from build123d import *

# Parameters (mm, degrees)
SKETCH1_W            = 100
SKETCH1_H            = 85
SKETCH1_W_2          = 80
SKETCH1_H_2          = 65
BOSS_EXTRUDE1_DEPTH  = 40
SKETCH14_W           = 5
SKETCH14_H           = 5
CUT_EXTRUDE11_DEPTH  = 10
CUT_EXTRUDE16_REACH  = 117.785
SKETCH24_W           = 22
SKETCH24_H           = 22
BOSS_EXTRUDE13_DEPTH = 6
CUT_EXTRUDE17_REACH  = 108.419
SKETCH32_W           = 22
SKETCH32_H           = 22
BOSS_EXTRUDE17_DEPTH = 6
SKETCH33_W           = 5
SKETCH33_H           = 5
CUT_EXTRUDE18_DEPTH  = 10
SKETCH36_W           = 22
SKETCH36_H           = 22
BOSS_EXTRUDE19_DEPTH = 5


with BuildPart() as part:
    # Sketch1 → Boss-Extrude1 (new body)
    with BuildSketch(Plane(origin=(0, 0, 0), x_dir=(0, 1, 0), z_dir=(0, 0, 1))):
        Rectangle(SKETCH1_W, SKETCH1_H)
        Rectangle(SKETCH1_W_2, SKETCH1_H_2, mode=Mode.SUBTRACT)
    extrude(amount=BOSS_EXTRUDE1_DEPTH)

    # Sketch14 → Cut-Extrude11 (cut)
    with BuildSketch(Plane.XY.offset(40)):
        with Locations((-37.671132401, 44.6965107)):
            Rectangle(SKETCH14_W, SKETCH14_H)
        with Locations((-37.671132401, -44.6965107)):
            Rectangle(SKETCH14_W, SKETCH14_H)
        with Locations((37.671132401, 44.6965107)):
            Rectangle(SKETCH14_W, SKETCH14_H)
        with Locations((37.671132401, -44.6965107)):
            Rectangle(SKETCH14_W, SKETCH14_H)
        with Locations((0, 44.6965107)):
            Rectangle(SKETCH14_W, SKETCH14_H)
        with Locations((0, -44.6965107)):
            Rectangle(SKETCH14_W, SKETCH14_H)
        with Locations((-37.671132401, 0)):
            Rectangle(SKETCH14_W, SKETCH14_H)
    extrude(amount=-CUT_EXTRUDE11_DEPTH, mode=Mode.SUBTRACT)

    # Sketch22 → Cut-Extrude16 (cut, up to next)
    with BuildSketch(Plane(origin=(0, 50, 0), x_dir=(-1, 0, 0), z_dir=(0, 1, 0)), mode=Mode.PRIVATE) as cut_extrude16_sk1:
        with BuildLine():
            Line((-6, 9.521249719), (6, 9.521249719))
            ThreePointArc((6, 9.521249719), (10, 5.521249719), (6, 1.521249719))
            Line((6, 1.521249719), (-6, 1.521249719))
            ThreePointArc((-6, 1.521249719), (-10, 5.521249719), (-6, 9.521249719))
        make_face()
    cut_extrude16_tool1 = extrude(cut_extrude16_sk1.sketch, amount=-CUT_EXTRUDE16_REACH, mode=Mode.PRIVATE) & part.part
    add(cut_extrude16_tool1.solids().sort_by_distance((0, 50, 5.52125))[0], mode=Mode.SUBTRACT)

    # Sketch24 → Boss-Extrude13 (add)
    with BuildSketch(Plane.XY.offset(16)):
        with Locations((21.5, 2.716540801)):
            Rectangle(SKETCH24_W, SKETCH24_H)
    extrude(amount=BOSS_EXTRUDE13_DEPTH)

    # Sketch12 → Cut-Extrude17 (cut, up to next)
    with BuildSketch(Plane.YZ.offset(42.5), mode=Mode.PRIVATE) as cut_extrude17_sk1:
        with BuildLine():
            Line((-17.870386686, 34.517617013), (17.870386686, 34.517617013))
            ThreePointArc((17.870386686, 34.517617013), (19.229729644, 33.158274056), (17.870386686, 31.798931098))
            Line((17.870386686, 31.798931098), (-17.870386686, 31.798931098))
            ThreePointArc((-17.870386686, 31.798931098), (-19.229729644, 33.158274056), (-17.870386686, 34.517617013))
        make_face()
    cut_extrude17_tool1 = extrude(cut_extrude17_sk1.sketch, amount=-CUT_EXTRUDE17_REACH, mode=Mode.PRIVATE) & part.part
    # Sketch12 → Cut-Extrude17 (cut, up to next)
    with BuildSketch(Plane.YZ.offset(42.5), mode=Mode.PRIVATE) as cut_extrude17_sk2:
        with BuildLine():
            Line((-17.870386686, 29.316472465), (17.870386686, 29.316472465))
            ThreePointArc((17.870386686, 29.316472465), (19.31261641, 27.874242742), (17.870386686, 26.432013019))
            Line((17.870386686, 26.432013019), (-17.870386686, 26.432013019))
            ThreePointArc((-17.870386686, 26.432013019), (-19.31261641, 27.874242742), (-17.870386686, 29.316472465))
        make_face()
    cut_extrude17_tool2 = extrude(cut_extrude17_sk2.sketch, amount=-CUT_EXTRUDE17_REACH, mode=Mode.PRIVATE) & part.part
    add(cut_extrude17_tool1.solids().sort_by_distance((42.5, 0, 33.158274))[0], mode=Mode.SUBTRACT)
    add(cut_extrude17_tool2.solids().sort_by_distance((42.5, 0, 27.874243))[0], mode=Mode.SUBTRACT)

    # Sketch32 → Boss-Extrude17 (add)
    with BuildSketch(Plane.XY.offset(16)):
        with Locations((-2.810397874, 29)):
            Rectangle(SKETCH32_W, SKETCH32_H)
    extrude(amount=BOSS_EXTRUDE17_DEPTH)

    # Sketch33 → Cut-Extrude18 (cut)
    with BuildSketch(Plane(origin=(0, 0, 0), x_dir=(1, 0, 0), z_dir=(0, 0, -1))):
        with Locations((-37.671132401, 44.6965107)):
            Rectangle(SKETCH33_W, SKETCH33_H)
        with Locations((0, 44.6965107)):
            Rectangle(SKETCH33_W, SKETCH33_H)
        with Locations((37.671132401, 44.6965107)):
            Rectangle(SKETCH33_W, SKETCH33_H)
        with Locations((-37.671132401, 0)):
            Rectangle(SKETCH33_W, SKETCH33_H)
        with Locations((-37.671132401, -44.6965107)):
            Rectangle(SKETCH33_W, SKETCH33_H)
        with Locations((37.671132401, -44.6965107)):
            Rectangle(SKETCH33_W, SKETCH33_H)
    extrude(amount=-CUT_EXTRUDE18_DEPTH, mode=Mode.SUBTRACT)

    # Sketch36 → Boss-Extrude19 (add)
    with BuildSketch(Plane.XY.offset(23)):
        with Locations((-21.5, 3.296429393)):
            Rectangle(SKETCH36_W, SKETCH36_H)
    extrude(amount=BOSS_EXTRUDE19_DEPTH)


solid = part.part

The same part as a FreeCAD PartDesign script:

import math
import FreeCAD as App
import Part
import Sketcher
from FreeCAD import Vector
Q = App.Units.Quantity


def add_polygon(sketch, points):
    """Adds a closed chain of lines whose ends are joined by coincident constraints."""
    first, n = sketch.GeometryCount, len(points)
    for a, b in zip(points, points[1:] + points[:1]):
        sketch.addGeometry(Part.LineSegment(App.Vector(*a, 0), App.Vector(*b, 0)), False)
    for i in range(n):
        sketch.addConstraint(Sketcher.Constraint("Coincident", first + i, 2, first + (i + 1) % n, 1))

doc = App.newDocument("Part")
body = doc.addObject("PartDesign::Body", "Body")

sketch1 = body.newObject("Sketcher::SketchObject", "Sketch")
sketch1.AttachmentSupport = (doc.getObject("XY_Plane"), [""])
sketch1.MapMode = "FlatFace"
add_polygon(sketch1, [(-42.5, -50), (42.5, -50), (42.5, 50), (-42.5, 50)])
add_polygon(sketch1, [(32.5, 40), (32.5, -40), (-32.5, -40), (-32.5, 40)])
sketch1.addConstraint(Sketcher.Constraint("Horizontal", 0))
sketch1.addConstraint(Sketcher.Constraint("Vertical", 1))
sketch1.addConstraint(Sketcher.Constraint("Horizontal", 2))
sketch1.addConstraint(Sketcher.Constraint("Vertical", 3))
sketch1.addConstraint(Sketcher.Constraint("Vertical", 4))
sketch1.addConstraint(Sketcher.Constraint("Horizontal", 5))
sketch1.addConstraint(Sketcher.Constraint("Vertical", 6))
sketch1.addConstraint(Sketcher.Constraint("Horizontal", 7))
sketch1.addConstraint(Sketcher.Constraint("Symmetric", 0, 2, 2, 2, -1, 1))
sketch1.addConstraint(Sketcher.Constraint("Symmetric", 4, 2, 6, 2, -1, 1))
sketch1.addConstraint(Sketcher.Constraint("DistanceX", 0, 1, 0, 2, Q("85 mm")))
sketch1.addConstraint(Sketcher.Constraint("DistanceX", 5, 2, 5, 1, Q("65 mm")))
sketch1.addConstraint(Sketcher.Constraint("DistanceY", 1, 1, 1, 2, Q("100 mm")))
sketch1.addConstraint(Sketcher.Constraint("DistanceY", 4, 2, 4, 1, Q("80 mm")))
pad1 = body.newObject("PartDesign::Pad", "Pad")
pad1.Profile = sketch1
pad1.Length = 40

sketch2 = body.newObject("Sketcher::SketchObject", "Sketch001")
sketch2.AttachmentSupport = (doc.getObject("XY_Plane"), [""])
sketch2.MapMode = "FlatFace"
sketch2.AttachmentOffset = App.Placement(Vector(0, 0, 40), App.Rotation())
add_polygon(sketch2, [(-40.171132, 47.196511), (-40.171132, 42.196511), (-35.171132, 42.196511), (-35.171132, 47.196511)])
add_polygon(sketch2, [(-40.171132, -42.196511), (-40.171132, -47.196511), (-35.171132, -47.196511), (-35.171132, -42.196511)])
add_polygon(sketch2, [(35.171132, 47.196511), (35.171132, 42.196511), (40.171132, 42.196511), (40.171132, 47.196511)])
add_polygon(sketch2, [(35.171132, -42.196511), (35.171132, -47.196511), (40.171132, -47.196511), (40.171132, -42.196511)])
add_polygon(sketch2, [(-2.5, 47.196511), (-2.5, 42.196511), (2.5, 42.196511), (2.5, 47.196511)])
add_polygon(sketch2, [(-2.5, -42.196511), (-2.5, -47.196511), (2.5, -47.196511), (2.5, -42.196511)])
add_polygon(sketch2, [(-40.171132, 2.5), (-40.171132, -2.5), (-35.171132, -2.5), (-35.171132, 2.5)])
sketch2.addConstraint(Sketcher.Constraint("Vertical", 0))
sketch2.addConstraint(Sketcher.Constraint("Horizontal", 1))
sketch2.addConstraint(Sketcher.Constraint("Vertical", 2))
sketch2.addConstraint(Sketcher.Constraint("Horizontal", 3))
sketch2.addConstraint(Sketcher.Constraint("Vertical", 4))
sketch2.addConstraint(Sketcher.Constraint("Horizontal", 5))
sketch2.addConstraint(Sketcher.Constraint("Vertical", 6))
sketch2.addConstraint(Sketcher.Constraint("Horizontal", 7))
sketch2.addConstraint(Sketcher.Constraint("Vertical", 8))
sketch2.addConstraint(Sketcher.Constraint("Horizontal", 9))
sketch2.addConstraint(Sketcher.Constraint("Vertical", 10))
sketch2.addConstraint(Sketcher.Constraint("Horizontal", 11))
sketch2.addConstraint(Sketcher.Constraint("Vertical", 12))
sketch2.addConstraint(Sketcher.Constraint("Horizontal", 13))
sketch2.addConstraint(Sketcher.Constraint("Vertical", 14))
sketch2.addConstraint(Sketcher.Constraint("Horizontal", 15))
sketch2.addConstraint(Sketcher.Constraint("Vertical", 16))
sketch2.addConstraint(Sketcher.Constraint("Horizontal", 17))
sketch2.addConstraint(Sketcher.Constraint("Vertical", 18))
sketch2.addConstraint(Sketcher.Constraint("Horizontal", 19))
sketch2.addConstraint(Sketcher.Constraint("Vertical", 20))
sketch2.addConstraint(Sketcher.Constraint("Horizontal", 21))
sketch2.addConstraint(Sketcher.Constraint("Vertical", 22))
sketch2.addConstraint(Sketcher.Constraint("Horizontal", 23))
sketch2.addConstraint(Sketcher.Constraint("Vertical", 24))
sketch2.addConstraint(Sketcher.Constraint("Horizontal", 25))
sketch2.addConstraint(Sketcher.Constraint("Vertical", 26))
sketch2.addConstraint(Sketcher.Constraint("Horizontal", 27))
sketch2.addConstraint(Sketcher.Constraint("Symmetric", 6, 2, 8, 2, -1, 1))
sketch2.addConstraint(Sketcher.Constraint("Symmetric", 4, 2, 10, 2, -1, 1))
sketch2.addConstraint(Sketcher.Constraint("Symmetric", 2, 2, 12, 2, -1, 1))
sketch2.addConstraint(Sketcher.Constraint("Symmetric", 0, 2, 14, 2, -1, 1))
sketch2.addConstraint(Sketcher.Constraint("Symmetric", 18, 2, 20, 2, -1, 1))
sketch2.addConstraint(Sketcher.Constraint("Symmetric", 16, 2, 22, 2, -1, 1))
sketch2.addConstraint(Sketcher.Constraint("Symmetric", 1, 2, 8, 2, -2))
sketch2.addConstraint(Sketcher.Constraint("Symmetric", 3, 2, 10, 2, -2))
sketch2.addConstraint(Sketcher.Constraint("Horizontal", 9, 2, 16, 2))
sketch2.addConstraint(Sketcher.Constraint("Horizontal", 11, 2, 18, 2))
sketch2.addConstraint(Sketcher.Constraint("Vertical", 19, 2, 20, 2))
sketch2.addConstraint(Sketcher.Constraint("Vertical", 7, 2, 24, 2))
sketch2.addConstraint(Sketcher.Constraint("Vertical", 6, 2, 25, 2))
sketch2.addConstraint(Sketcher.Constraint("Equal", 15, 17))
sketch2.addConstraint(Sketcher.Constraint("Equal", 27, 0))
sketch2.addConstraint(Sketcher.Constraint("Equal", 22, 24))
sketch2.addConstraint(Sketcher.Constraint("DistanceX", 1, 1, 1, 2, Q("5 mm")))
sketch2.addConstraint(Sketcher.Constraint("DistanceY", 24, 2, -1, 1, Q("2.5 mm")))
sketch2.addConstraint(Sketcher.Constraint("DistanceY", -1, 1, 0, 2, Q("42.196511 mm")))
sketch2.addConstraint(Sketcher.Constraint("DistanceX", 0, 2, -1, 1, Q("40.171132 mm")))
pocket1 = body.newObject("PartDesign::Pocket", "Pocket")
pocket1.Profile = sketch2
pocket1.Length = 10

sketch3 = body.newObject("Sketcher::SketchObject", "Sketch002")
sketch3.AttachmentSupport = (doc.getObject("XZ_Plane"), [""])
sketch3.MapMode = "FlatFace"
sketch3.AttachmentOffset = App.Placement(Vector(0, 0, -50), App.Rotation())
sketch3.addGeometry(Part.LineSegment(Vector(-6, 9.52125, 0), Vector(6, 9.52125, 0)), False)
sketch3.addGeometry(Part.ArcOfCircle(Part.Circle(Vector(6, 5.52125, 0), Vector(0, 0, 1), 4), math.radians(-90), math.radians(90)), False)
sketch3.addGeometry(Part.LineSegment(Vector(6, 1.52125, 0), Vector(-6, 1.52125, 0)), False)
sketch3.addGeometry(Part.ArcOfCircle(Part.Circle(Vector(-6, 5.52125, 0), Vector(0, 0, 1), 4), math.radians(90), math.radians(270)), False)
sketch3.addConstraint(Sketcher.Constraint("Tangent", 0, 2, 1, 2))
sketch3.addConstraint(Sketcher.Constraint("Tangent", 1, 1, 2, 1))
sketch3.addConstraint(Sketcher.Constraint("Tangent", 2, 2, 3, 2))
sketch3.addConstraint(Sketcher.Constraint("Tangent", 3, 1, 0, 1))
sketch3.addConstraint(Sketcher.Constraint("Horizontal", 0))
sketch3.addConstraint(Sketcher.Constraint("Horizontal", 2))
sketch3.addConstraint(Sketcher.Constraint("Radius", 1, Q("4 mm")))
sketch3.addConstraint(Sketcher.Constraint("DistanceX", 0, 1, 0, 2, Q("12 mm")))
sketch3.addConstraint(Sketcher.Constraint("DistanceX", -1, 1, 1, 3, Q("6 mm")))
sketch3.addConstraint(Sketcher.Constraint("DistanceY", -1, 1, 1, 3, Q("5.52125 mm")))
pocket2 = body.newObject("PartDesign::Pocket", "Pocket001")
pocket2.Profile = sketch3
pocket2.Type = "UpToFirst"
pocket2.Reversed = True

sketch4 = body.newObject("Sketcher::SketchObject", "Sketch003")
sketch4.AttachmentSupport = (doc.getObject("XY_Plane"), [""])
sketch4.MapMode = "FlatFace"
sketch4.AttachmentOffset = App.Placement(Vector(0, 0, 16), App.Rotation())
add_polygon(sketch4, [(10.5, 13.716541), (10.5, -8.283459), (32.5, -8.283459), (32.5, 13.716541)])
sketch4.addConstraint(Sketcher.Constraint("Vertical", 0))
sketch4.addConstraint(Sketcher.Constraint("Horizontal", 1))
sketch4.addConstraint(Sketcher.Constraint("Vertical", 2))
sketch4.addConstraint(Sketcher.Constraint("Horizontal", 3))
sketch4.addConstraint(Sketcher.Constraint("Equal", 3, 0))
sketch4.addConstraint(Sketcher.Constraint("DistanceX", 1, 1, 1, 2, Q("22 mm")))
sketch4.addConstraint(Sketcher.Constraint("DistanceX", -1, 1, 0, 2, Q("10.5 mm")))
sketch4.addConstraint(Sketcher.Constraint("DistanceY", 0, 2, -1, 1, Q("8.283459 mm")))
pad2 = body.newObject("PartDesign::Pad", "Pad001")
pad2.Profile = sketch4
pad2.Length = 6

sketch5 = body.newObject("Sketcher::SketchObject", "Sketch004")
sketch5.AttachmentSupport = (doc.getObject("YZ_Plane"), [""])
sketch5.MapMode = "FlatFace"
sketch5.AttachmentOffset = App.Placement(Vector(0, 0, 42.5), App.Rotation())
sketch5.addGeometry(Part.LineSegment(Vector(17.870387, 34.517617, 0), Vector(-17.870387, 34.517617, 0)), False)
sketch5.addGeometry(Part.ArcOfCircle(Part.Circle(Vector(-17.870387, 33.158274, 0), Vector(0, 0, 1), 1.359343), math.radians(90), math.radians(270)), False)
sketch5.addGeometry(Part.LineSegment(Vector(-17.870387, 31.798931, 0), Vector(17.870387, 31.798931, 0)), False)
sketch5.addGeometry(Part.ArcOfCircle(Part.Circle(Vector(17.870387, 33.158274, 0), Vector(0, 0, 1), 1.359343), math.radians(-90), math.radians(90)), False)
sketch5.addConstraint(Sketcher.Constraint("Tangent", 0, 2, 1, 1))
sketch5.addConstraint(Sketcher.Constraint("Tangent", 1, 2, 2, 1))
sketch5.addConstraint(Sketcher.Constraint("Tangent", 2, 2, 3, 1))
sketch5.addConstraint(Sketcher.Constraint("Tangent", 3, 2, 0, 1))
sketch5.addConstraint(Sketcher.Constraint("Horizontal", 0))
sketch5.addConstraint(Sketcher.Constraint("Horizontal", 2))
sketch5.addConstraint(Sketcher.Constraint("Radius", 1, Q("1.359343 mm")))
sketch5.addConstraint(Sketcher.Constraint("DistanceX", 0, 2, 0, 1, Q("35.740773 mm")))
sketch5.addConstraint(Sketcher.Constraint("DistanceY", -1, 1, 1, 2, Q("31.798931 mm")))
sketch5.addConstraint(Sketcher.Constraint("DistanceX", 1, 3, -1, 1, Q("17.870387 mm")))
pocket3 = body.newObject("PartDesign::Pocket", "Pocket002")
pocket3.Profile = sketch5
pocket3.Type = "UpToFirst"

sketch6 = body.newObject("Sketcher::SketchObject", "Sketch005")
sketch6.AttachmentSupport = (doc.getObject("YZ_Plane"), [""])
sketch6.MapMode = "FlatFace"
sketch6.AttachmentOffset = App.Placement(Vector(0, 0, 42.5), App.Rotation())
sketch6.addGeometry(Part.LineSegment(Vector(17.870387, 29.316472, 0), Vector(-17.870387, 29.316472, 0)), False)
sketch6.addGeometry(Part.ArcOfCircle(Part.Circle(Vector(-17.870387, 27.874243, 0), Vector(0, 0, 1), 1.44223), math.radians(90), math.radians(270)), False)
sketch6.addGeometry(Part.LineSegment(Vector(-17.870387, 26.432013, 0), Vector(17.870387, 26.432013, 0)), False)
sketch6.addGeometry(Part.ArcOfCircle(Part.Circle(Vector(17.870387, 27.874243, 0), Vector(0, 0, 1), 1.44223), math.radians(-90), math.radians(90)), False)
sketch6.addConstraint(Sketcher.Constraint("Tangent", 0, 2, 1, 1))
sketch6.addConstraint(Sketcher.Constraint("Tangent", 1, 2, 2, 1))
sketch6.addConstraint(Sketcher.Constraint("Tangent", 2, 2, 3, 1))
sketch6.addConstraint(Sketcher.Constraint("Tangent", 3, 2, 0, 1))
sketch6.addConstraint(Sketcher.Constraint("Horizontal", 0))
sketch6.addConstraint(Sketcher.Constraint("Horizontal", 2))
sketch6.addConstraint(Sketcher.Constraint("Radius", 1, Q("1.44223 mm")))
sketch6.addConstraint(Sketcher.Constraint("DistanceX", 0, 2, 0, 1, Q("35.740773 mm")))
sketch6.addConstraint(Sketcher.Constraint("DistanceX", 1, 3, -1, 1, Q("17.870387 mm")))
sketch6.addConstraint(Sketcher.Constraint("DistanceY", -1, 1, 1, 3, Q("27.874243 mm")))
pocket4 = body.newObject("PartDesign::Pocket", "Pocket003")
pocket4.Profile = sketch6
pocket4.Type = "UpToFirst"

sketch7 = body.newObject("Sketcher::SketchObject", "Sketch006")
sketch7.AttachmentSupport = (doc.getObject("XY_Plane"), [""])
sketch7.MapMode = "FlatFace"
sketch7.AttachmentOffset = App.Placement(Vector(0, 0, 16), App.Rotation())
add_polygon(sketch7, [(-13.810398, 40), (-13.810398, 18), (8.189602, 18), (8.189602, 40)])
sketch7.addConstraint(Sketcher.Constraint("Vertical", 0))
sketch7.addConstraint(Sketcher.Constraint("Horizontal", 1))
sketch7.addConstraint(Sketcher.Constraint("Vertical", 2))
sketch7.addConstraint(Sketcher.Constraint("Horizontal", 3))
sketch7.addConstraint(Sketcher.Constraint("Equal", 3, 0))
sketch7.addConstraint(Sketcher.Constraint("DistanceX", 1, 1, 1, 2, Q("22 mm")))
sketch7.addConstraint(Sketcher.Constraint("DistanceY", -1, 1, 0, 2, Q("18 mm")))
sketch7.addConstraint(Sketcher.Constraint("DistanceX", 0, 2, -1, 1, Q("13.810398 mm")))
pad3 = body.newObject("PartDesign::Pad", "Pad002")
pad3.Profile = sketch7
pad3.Length = 6

sketch8 = body.newObject("Sketcher::SketchObject", "Sketch007")
sketch8.AttachmentSupport = (doc.getObject("XY_Plane"), [""])
sketch8.MapMode = "FlatFace"
add_polygon(sketch8, [(-40.171132, -47.196511), (-40.171132, -42.196511), (-35.171132, -42.196511), (-35.171132, -47.196511)])
add_polygon(sketch8, [(-2.5, -47.196511), (-2.5, -42.196511), (2.5, -42.196511), (2.5, -47.196511)])
add_polygon(sketch8, [(35.171132, -47.196511), (35.171132, -42.196511), (40.171132, -42.196511), (40.171132, -47.196511)])
add_polygon(sketch8, [(-40.171132, -2.5), (-40.171132, 2.5), (-35.171132, 2.5), (-35.171132, -2.5)])
add_polygon(sketch8, [(-40.171132, 42.196511), (-40.171132, 47.196511), (-35.171132, 47.196511), (-35.171132, 42.196511)])
add_polygon(sketch8, [(35.171132, 42.196511), (35.171132, 47.196511), (40.171132, 47.196511), (40.171132, 42.196511)])
sketch8.addConstraint(Sketcher.Constraint("Vertical", 0))
sketch8.addConstraint(Sketcher.Constraint("Horizontal", 1))
sketch8.addConstraint(Sketcher.Constraint("Vertical", 2))
sketch8.addConstraint(Sketcher.Constraint("Horizontal", 3))
sketch8.addConstraint(Sketcher.Constraint("Vertical", 4))
sketch8.addConstraint(Sketcher.Constraint("Horizontal", 5))
sketch8.addConstraint(Sketcher.Constraint("Vertical", 6))
sketch8.addConstraint(Sketcher.Constraint("Horizontal", 7))
sketch8.addConstraint(Sketcher.Constraint("Vertical", 8))
sketch8.addConstraint(Sketcher.Constraint("Horizontal", 9))
sketch8.addConstraint(Sketcher.Constraint("Vertical", 10))
sketch8.addConstraint(Sketcher.Constraint("Horizontal", 11))
sketch8.addConstraint(Sketcher.Constraint("Vertical", 12))
sketch8.addConstraint(Sketcher.Constraint("Horizontal", 13))
sketch8.addConstraint(Sketcher.Constraint("Vertical", 14))
sketch8.addConstraint(Sketcher.Constraint("Horizontal", 15))
sketch8.addConstraint(Sketcher.Constraint("Vertical", 16))
sketch8.addConstraint(Sketcher.Constraint("Horizontal", 17))
sketch8.addConstraint(Sketcher.Constraint("Vertical", 18))
sketch8.addConstraint(Sketcher.Constraint("Horizontal", 19))
sketch8.addConstraint(Sketcher.Constraint("Vertical", 20))
sketch8.addConstraint(Sketcher.Constraint("Horizontal", 21))
sketch8.addConstraint(Sketcher.Constraint("Vertical", 22))
sketch8.addConstraint(Sketcher.Constraint("Horizontal", 23))
sketch8.addConstraint(Sketcher.Constraint("Symmetric", 10, 2, 16, 2, -1, 1))
sketch8.addConstraint(Sketcher.Constraint("Symmetric", 8, 2, 18, 2, -1, 1))
sketch8.addConstraint(Sketcher.Constraint("Symmetric", 2, 2, 20, 2, -1, 1))
sketch8.addConstraint(Sketcher.Constraint("Symmetric", 0, 2, 22, 2, -1, 1))
sketch8.addConstraint(Sketcher.Constraint("Symmetric", 1, 2, 8, 2, -2))
sketch8.addConstraint(Sketcher.Constraint("Symmetric", 3, 2, 10, 2, -2))
sketch8.addConstraint(Sketcher.Constraint("Horizontal", 1, 2, 4, 2))
sketch8.addConstraint(Sketcher.Constraint("Horizontal", 3, 2, 6, 2))
sketch8.addConstraint(Sketcher.Constraint("Vertical", 3, 2, 12, 2))
sketch8.addConstraint(Sketcher.Constraint("Vertical", 2, 2, 13, 2))
sketch8.addConstraint(Sketcher.Constraint("Equal", 3, 5))
sketch8.addConstraint(Sketcher.Constraint("Equal", 23, 0))
sketch8.addConstraint(Sketcher.Constraint("Equal", 10, 12))
sketch8.addConstraint(Sketcher.Constraint("DistanceX", 1, 1, 1, 2, Q("5 mm")))
sketch8.addConstraint(Sketcher.Constraint("DistanceX", 4, 2, -1, 1, Q("2.5 mm")))
sketch8.addConstraint(Sketcher.Constraint("DistanceY", -1, 1, 12, 2, Q("2.5 mm")))
sketch8.addConstraint(Sketcher.Constraint("DistanceY", 0, 2, -1, 1, Q("42.196511 mm")))
sketch8.addConstraint(Sketcher.Constraint("DistanceX", 0, 2, -1, 1, Q("40.171132 mm")))
pocket5 = body.newObject("PartDesign::Pocket", "Pocket004")
pocket5.Profile = sketch8
pocket5.Length = 10
pocket5.Reversed = True

sketch9 = body.newObject("Sketcher::SketchObject", "Sketch008")
sketch9.AttachmentSupport = (doc.getObject("XY_Plane"), [""])
sketch9.MapMode = "FlatFace"
sketch9.AttachmentOffset = App.Placement(Vector(0, 0, 23), App.Rotation())
add_polygon(sketch9, [(-32.5, 14.296429), (-32.5, -7.703571), (-10.5, -7.703571), (-10.5, 14.296429)])
sketch9.addConstraint(Sketcher.Constraint("Vertical", 0))
sketch9.addConstraint(Sketcher.Constraint("Horizontal", 1))
sketch9.addConstraint(Sketcher.Constraint("Vertical", 2))
sketch9.addConstraint(Sketcher.Constraint("Horizontal", 3))
sketch9.addConstraint(Sketcher.Constraint("Equal", 3, 0))
sketch9.addConstraint(Sketcher.Constraint("DistanceX", 1, 1, 1, 2, Q("22 mm")))
sketch9.addConstraint(Sketcher.Constraint("DistanceX", 0, 2, -1, 1, Q("32.5 mm")))
sketch9.addConstraint(Sketcher.Constraint("DistanceY", 0, 2, -1, 1, Q("7.703571 mm")))
pad4 = body.newObject("PartDesign::Pad", "Pad003")
pad4.Profile = sketch9
pad4.Length = 5

doc.recompute()
